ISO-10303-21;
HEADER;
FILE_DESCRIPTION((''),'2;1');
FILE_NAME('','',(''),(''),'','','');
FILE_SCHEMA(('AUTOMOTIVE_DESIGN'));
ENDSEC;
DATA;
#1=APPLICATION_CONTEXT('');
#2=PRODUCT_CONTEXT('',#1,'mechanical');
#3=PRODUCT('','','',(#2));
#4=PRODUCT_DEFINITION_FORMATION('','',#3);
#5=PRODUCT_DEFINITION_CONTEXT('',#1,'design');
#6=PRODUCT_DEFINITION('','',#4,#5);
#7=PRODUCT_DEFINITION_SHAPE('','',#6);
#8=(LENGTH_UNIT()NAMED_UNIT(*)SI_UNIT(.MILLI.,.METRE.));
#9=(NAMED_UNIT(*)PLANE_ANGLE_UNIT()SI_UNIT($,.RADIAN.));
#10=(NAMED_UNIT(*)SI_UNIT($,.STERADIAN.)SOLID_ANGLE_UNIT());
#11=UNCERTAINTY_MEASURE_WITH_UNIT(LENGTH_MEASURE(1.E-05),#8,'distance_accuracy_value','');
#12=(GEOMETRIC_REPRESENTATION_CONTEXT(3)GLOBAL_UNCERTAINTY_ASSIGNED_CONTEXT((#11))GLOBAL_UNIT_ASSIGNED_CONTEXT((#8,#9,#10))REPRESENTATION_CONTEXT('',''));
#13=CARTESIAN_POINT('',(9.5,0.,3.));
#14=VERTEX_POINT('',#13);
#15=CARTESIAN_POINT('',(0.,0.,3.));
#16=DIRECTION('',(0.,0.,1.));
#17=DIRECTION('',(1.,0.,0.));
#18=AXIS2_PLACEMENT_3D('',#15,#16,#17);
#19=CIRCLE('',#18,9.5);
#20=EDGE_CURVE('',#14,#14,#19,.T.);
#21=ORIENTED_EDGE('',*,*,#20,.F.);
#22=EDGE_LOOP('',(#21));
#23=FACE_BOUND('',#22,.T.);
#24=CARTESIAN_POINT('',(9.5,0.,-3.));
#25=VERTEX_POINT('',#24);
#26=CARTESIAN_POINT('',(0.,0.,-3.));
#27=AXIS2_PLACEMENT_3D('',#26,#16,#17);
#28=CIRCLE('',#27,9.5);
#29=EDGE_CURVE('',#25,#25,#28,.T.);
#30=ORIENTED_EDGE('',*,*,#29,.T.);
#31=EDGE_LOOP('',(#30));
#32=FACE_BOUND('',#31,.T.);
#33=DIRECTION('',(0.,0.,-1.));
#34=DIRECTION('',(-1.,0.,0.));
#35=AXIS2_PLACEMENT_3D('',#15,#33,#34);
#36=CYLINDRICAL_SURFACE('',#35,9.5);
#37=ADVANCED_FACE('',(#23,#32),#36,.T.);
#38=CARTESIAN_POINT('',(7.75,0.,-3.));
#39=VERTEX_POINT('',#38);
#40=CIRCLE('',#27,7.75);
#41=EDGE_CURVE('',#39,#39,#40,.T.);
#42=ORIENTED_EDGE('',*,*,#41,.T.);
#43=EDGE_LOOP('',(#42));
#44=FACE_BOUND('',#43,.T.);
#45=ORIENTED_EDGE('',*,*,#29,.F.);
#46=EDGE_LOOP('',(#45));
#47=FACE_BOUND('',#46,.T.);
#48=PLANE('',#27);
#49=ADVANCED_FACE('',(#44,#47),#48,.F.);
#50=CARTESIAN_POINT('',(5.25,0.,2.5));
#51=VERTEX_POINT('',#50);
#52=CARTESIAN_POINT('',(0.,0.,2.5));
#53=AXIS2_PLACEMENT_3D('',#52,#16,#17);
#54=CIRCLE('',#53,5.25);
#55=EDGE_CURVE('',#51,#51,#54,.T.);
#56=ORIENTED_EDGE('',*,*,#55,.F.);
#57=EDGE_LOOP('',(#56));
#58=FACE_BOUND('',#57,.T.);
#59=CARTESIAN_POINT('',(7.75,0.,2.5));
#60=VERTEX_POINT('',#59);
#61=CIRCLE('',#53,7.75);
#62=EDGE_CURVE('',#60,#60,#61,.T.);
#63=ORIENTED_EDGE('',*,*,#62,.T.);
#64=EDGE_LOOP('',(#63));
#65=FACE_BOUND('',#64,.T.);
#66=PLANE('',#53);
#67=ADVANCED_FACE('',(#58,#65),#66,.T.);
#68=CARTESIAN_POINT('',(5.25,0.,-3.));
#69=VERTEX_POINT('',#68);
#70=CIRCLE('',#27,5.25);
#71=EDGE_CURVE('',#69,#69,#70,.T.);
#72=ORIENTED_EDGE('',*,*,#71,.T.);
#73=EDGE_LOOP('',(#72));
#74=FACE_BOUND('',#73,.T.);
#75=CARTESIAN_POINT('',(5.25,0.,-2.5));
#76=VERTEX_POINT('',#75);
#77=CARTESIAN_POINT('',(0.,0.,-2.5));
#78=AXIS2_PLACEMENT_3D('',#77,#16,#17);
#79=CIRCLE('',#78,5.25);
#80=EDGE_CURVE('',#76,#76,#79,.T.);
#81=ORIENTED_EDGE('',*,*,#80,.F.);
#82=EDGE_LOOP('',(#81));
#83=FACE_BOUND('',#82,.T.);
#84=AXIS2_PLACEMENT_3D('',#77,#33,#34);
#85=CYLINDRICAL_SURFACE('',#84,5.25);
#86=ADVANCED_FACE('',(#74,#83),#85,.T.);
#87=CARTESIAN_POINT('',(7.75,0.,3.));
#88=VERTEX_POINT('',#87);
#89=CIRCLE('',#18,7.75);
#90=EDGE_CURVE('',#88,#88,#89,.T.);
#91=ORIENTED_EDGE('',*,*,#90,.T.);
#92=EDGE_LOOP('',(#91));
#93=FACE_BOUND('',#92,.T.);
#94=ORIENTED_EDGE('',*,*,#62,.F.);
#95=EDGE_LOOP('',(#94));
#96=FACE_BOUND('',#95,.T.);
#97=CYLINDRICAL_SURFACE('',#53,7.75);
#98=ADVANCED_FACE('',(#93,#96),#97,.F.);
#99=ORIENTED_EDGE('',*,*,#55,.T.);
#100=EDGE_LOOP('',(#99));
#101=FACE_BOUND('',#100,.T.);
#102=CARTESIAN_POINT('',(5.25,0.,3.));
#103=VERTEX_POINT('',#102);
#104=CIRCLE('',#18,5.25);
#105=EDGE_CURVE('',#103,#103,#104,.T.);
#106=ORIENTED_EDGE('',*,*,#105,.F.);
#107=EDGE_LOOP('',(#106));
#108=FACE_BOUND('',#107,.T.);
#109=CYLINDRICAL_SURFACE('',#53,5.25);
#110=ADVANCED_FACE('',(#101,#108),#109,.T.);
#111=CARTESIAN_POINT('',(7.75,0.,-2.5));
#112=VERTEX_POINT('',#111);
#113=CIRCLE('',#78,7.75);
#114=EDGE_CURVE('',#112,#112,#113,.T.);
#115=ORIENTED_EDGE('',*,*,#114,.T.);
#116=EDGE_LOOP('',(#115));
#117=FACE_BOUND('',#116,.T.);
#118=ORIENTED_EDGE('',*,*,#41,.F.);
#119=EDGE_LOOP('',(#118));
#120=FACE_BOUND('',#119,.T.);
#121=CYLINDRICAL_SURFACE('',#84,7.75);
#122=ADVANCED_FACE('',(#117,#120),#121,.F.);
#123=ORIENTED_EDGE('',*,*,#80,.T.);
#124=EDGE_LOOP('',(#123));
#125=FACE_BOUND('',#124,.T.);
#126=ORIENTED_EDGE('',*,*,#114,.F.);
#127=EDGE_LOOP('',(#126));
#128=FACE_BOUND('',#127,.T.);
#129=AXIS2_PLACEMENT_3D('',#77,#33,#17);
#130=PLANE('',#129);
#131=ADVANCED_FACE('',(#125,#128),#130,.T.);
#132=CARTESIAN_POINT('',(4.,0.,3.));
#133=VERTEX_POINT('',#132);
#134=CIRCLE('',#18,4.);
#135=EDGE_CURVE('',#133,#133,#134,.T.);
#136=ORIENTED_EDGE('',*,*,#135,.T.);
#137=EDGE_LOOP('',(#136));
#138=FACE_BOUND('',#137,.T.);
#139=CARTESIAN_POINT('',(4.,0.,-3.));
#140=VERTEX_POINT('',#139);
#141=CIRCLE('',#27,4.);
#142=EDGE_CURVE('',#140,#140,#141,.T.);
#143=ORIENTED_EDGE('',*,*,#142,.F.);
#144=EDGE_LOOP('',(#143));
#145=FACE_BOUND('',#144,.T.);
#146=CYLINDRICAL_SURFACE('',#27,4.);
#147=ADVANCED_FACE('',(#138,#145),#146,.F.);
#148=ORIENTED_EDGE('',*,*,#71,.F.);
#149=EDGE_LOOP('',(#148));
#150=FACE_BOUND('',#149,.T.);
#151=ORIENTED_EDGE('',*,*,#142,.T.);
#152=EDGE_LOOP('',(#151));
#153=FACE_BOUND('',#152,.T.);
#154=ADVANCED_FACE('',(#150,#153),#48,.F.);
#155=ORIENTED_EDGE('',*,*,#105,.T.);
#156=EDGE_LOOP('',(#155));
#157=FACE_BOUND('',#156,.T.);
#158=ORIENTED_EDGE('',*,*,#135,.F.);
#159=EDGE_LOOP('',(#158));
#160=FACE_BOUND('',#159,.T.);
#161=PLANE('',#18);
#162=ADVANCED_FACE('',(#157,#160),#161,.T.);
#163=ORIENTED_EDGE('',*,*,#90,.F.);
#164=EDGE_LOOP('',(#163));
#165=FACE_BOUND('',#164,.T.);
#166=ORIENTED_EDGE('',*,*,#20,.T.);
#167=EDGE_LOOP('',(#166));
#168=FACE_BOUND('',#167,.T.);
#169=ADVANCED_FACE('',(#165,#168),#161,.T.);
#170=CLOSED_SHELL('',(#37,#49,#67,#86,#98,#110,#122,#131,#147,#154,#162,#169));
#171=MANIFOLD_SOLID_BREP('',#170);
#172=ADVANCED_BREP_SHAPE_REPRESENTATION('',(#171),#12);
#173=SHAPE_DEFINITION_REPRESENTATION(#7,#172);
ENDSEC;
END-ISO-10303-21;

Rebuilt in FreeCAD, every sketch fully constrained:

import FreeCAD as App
import Part
import Sketcher
from FreeCAD import Vector

doc = App.newDocument("Part")
params = doc.addObject("Spreadsheet::Sheet", "Params")
for row, (alias, value) in enumerate([
    ("sketch1_diameter", "19 mm"),
    ("pad1_length", "6 mm"),
    ("sketch2_diameter", "8 mm"),
    ("sketch3_diameter", "15.5 mm"),
    ("sketch3_diameter2", "10.5 mm"),
    ("pocket2_length", "0.5 mm"),
], start=1):
    params.set(f"A{row}", alias)
    params.set(f"B{row}", "=" + value)
    params.setAlias(f"B{row}", alias)

body = doc.addObject("PartDesign::Body", "Body")

# Sketch on XY plane
sketch1 = body.newObject("Sketcher::SketchObject", "Sketch")
sketch1.AttachmentSupport = (doc.getObject("XY_Plane"), [""])
sketch1.MapMode = "FlatFace"
sketch1.addGeometry(Part.Circle(Vector(0, 0, 0), Vector(0, 0, 1), 9.5), False)
sketch1.addConstraint(Sketcher.Constraint("Coincident", 0, 3, -1, 1))
sketch1.addConstraint(Sketcher.Constraint("Diameter", 0, 19.0))
sketch1.setExpression("Constraints[1]", "Params.sketch1_diameter")
pad1 = body.newObject("PartDesign::Pad", "Pad")
pad1.Profile = sketch1
pad1.setExpression("Length", "Params.pad1_length")
pad1.Midplane = True

# Sketch on XY plane
sketch2 = body.newObject("Sketcher::SketchObject", "Sketch001")
sketch2.AttachmentSupport = (doc.getObject("XY_Plane"), [""])
sketch2.MapMode = "FlatFace"
sketch2.AttachmentOffset = App.Placement(Vector(0, 0, 3), App.Rotation())
sketch2.addGeometry(Part.Circle(Vector(0, 0, 0), Vector(0, 0, 1), 4), False)
sketch2.addConstraint(Sketcher.Constraint("Coincident", 0, 3, -1, 1))
sketch2.addConstraint(Sketcher.Constraint("Diameter", 0, 8.0))
sketch2.setExpression("Constraints[1]", "Params.sketch2_diameter")
pocket1 = body.newObject("PartDesign::Pocket", "Pocket")
pocket1.Profile = sketch2
pocket1.Type = "ThroughAll"

# Sketch on XY plane
sketch3 = body.newObject("Sketcher::SketchObject", "Sketch002")
sketch3.AttachmentSupport = (doc.getObject("XY_Plane"), [""])
sketch3.MapMode = "FlatFace"
sketch3.AttachmentOffset = App.Placement(Vector(0, 0, 3), App.Rotation())
sketch3.addGeometry(Part.Circle(Vector(0, 0, 0), Vector(0, 0, 1), 7.75), False)
sketch3.addGeometry(Part.Circle(Vector(0, 0, 0), Vector(0, 0, 1), 5.25), False)
sketch3.addConstraint(Sketcher.Constraint("Coincident", 0, 3, -1, 1))
sketch3.addConstraint(Sketcher.Constraint("Coincident", 1, 3, -1, 1))
sketch3.addConstraint(Sketcher.Constraint("Diameter", 0, 15.5))
sketch3.addConstraint(Sketcher.Constraint("Diameter", 1, 10.5))
sketch3.setExpression("Constraints[2]", "Params.sketch3_diameter")
sketch3.setExpression("Constraints[3]", "Params.sketch3_diameter2")
pocket2 = body.newObject("PartDesign::Pocket", "Pocket001")
pocket2.Profile = sketch3
pocket2.setExpression("Length", "Params.pocket2_length")
doc.recompute()

mirrored = body.newObject("PartDesign::Mirrored", "Mirrored")
mirrored.Originals = [pocket2]
mirrored.MirrorPlane = (doc.getObject("XY_Plane"), [""])
body.Tip = mirrored

doc.recompute()
